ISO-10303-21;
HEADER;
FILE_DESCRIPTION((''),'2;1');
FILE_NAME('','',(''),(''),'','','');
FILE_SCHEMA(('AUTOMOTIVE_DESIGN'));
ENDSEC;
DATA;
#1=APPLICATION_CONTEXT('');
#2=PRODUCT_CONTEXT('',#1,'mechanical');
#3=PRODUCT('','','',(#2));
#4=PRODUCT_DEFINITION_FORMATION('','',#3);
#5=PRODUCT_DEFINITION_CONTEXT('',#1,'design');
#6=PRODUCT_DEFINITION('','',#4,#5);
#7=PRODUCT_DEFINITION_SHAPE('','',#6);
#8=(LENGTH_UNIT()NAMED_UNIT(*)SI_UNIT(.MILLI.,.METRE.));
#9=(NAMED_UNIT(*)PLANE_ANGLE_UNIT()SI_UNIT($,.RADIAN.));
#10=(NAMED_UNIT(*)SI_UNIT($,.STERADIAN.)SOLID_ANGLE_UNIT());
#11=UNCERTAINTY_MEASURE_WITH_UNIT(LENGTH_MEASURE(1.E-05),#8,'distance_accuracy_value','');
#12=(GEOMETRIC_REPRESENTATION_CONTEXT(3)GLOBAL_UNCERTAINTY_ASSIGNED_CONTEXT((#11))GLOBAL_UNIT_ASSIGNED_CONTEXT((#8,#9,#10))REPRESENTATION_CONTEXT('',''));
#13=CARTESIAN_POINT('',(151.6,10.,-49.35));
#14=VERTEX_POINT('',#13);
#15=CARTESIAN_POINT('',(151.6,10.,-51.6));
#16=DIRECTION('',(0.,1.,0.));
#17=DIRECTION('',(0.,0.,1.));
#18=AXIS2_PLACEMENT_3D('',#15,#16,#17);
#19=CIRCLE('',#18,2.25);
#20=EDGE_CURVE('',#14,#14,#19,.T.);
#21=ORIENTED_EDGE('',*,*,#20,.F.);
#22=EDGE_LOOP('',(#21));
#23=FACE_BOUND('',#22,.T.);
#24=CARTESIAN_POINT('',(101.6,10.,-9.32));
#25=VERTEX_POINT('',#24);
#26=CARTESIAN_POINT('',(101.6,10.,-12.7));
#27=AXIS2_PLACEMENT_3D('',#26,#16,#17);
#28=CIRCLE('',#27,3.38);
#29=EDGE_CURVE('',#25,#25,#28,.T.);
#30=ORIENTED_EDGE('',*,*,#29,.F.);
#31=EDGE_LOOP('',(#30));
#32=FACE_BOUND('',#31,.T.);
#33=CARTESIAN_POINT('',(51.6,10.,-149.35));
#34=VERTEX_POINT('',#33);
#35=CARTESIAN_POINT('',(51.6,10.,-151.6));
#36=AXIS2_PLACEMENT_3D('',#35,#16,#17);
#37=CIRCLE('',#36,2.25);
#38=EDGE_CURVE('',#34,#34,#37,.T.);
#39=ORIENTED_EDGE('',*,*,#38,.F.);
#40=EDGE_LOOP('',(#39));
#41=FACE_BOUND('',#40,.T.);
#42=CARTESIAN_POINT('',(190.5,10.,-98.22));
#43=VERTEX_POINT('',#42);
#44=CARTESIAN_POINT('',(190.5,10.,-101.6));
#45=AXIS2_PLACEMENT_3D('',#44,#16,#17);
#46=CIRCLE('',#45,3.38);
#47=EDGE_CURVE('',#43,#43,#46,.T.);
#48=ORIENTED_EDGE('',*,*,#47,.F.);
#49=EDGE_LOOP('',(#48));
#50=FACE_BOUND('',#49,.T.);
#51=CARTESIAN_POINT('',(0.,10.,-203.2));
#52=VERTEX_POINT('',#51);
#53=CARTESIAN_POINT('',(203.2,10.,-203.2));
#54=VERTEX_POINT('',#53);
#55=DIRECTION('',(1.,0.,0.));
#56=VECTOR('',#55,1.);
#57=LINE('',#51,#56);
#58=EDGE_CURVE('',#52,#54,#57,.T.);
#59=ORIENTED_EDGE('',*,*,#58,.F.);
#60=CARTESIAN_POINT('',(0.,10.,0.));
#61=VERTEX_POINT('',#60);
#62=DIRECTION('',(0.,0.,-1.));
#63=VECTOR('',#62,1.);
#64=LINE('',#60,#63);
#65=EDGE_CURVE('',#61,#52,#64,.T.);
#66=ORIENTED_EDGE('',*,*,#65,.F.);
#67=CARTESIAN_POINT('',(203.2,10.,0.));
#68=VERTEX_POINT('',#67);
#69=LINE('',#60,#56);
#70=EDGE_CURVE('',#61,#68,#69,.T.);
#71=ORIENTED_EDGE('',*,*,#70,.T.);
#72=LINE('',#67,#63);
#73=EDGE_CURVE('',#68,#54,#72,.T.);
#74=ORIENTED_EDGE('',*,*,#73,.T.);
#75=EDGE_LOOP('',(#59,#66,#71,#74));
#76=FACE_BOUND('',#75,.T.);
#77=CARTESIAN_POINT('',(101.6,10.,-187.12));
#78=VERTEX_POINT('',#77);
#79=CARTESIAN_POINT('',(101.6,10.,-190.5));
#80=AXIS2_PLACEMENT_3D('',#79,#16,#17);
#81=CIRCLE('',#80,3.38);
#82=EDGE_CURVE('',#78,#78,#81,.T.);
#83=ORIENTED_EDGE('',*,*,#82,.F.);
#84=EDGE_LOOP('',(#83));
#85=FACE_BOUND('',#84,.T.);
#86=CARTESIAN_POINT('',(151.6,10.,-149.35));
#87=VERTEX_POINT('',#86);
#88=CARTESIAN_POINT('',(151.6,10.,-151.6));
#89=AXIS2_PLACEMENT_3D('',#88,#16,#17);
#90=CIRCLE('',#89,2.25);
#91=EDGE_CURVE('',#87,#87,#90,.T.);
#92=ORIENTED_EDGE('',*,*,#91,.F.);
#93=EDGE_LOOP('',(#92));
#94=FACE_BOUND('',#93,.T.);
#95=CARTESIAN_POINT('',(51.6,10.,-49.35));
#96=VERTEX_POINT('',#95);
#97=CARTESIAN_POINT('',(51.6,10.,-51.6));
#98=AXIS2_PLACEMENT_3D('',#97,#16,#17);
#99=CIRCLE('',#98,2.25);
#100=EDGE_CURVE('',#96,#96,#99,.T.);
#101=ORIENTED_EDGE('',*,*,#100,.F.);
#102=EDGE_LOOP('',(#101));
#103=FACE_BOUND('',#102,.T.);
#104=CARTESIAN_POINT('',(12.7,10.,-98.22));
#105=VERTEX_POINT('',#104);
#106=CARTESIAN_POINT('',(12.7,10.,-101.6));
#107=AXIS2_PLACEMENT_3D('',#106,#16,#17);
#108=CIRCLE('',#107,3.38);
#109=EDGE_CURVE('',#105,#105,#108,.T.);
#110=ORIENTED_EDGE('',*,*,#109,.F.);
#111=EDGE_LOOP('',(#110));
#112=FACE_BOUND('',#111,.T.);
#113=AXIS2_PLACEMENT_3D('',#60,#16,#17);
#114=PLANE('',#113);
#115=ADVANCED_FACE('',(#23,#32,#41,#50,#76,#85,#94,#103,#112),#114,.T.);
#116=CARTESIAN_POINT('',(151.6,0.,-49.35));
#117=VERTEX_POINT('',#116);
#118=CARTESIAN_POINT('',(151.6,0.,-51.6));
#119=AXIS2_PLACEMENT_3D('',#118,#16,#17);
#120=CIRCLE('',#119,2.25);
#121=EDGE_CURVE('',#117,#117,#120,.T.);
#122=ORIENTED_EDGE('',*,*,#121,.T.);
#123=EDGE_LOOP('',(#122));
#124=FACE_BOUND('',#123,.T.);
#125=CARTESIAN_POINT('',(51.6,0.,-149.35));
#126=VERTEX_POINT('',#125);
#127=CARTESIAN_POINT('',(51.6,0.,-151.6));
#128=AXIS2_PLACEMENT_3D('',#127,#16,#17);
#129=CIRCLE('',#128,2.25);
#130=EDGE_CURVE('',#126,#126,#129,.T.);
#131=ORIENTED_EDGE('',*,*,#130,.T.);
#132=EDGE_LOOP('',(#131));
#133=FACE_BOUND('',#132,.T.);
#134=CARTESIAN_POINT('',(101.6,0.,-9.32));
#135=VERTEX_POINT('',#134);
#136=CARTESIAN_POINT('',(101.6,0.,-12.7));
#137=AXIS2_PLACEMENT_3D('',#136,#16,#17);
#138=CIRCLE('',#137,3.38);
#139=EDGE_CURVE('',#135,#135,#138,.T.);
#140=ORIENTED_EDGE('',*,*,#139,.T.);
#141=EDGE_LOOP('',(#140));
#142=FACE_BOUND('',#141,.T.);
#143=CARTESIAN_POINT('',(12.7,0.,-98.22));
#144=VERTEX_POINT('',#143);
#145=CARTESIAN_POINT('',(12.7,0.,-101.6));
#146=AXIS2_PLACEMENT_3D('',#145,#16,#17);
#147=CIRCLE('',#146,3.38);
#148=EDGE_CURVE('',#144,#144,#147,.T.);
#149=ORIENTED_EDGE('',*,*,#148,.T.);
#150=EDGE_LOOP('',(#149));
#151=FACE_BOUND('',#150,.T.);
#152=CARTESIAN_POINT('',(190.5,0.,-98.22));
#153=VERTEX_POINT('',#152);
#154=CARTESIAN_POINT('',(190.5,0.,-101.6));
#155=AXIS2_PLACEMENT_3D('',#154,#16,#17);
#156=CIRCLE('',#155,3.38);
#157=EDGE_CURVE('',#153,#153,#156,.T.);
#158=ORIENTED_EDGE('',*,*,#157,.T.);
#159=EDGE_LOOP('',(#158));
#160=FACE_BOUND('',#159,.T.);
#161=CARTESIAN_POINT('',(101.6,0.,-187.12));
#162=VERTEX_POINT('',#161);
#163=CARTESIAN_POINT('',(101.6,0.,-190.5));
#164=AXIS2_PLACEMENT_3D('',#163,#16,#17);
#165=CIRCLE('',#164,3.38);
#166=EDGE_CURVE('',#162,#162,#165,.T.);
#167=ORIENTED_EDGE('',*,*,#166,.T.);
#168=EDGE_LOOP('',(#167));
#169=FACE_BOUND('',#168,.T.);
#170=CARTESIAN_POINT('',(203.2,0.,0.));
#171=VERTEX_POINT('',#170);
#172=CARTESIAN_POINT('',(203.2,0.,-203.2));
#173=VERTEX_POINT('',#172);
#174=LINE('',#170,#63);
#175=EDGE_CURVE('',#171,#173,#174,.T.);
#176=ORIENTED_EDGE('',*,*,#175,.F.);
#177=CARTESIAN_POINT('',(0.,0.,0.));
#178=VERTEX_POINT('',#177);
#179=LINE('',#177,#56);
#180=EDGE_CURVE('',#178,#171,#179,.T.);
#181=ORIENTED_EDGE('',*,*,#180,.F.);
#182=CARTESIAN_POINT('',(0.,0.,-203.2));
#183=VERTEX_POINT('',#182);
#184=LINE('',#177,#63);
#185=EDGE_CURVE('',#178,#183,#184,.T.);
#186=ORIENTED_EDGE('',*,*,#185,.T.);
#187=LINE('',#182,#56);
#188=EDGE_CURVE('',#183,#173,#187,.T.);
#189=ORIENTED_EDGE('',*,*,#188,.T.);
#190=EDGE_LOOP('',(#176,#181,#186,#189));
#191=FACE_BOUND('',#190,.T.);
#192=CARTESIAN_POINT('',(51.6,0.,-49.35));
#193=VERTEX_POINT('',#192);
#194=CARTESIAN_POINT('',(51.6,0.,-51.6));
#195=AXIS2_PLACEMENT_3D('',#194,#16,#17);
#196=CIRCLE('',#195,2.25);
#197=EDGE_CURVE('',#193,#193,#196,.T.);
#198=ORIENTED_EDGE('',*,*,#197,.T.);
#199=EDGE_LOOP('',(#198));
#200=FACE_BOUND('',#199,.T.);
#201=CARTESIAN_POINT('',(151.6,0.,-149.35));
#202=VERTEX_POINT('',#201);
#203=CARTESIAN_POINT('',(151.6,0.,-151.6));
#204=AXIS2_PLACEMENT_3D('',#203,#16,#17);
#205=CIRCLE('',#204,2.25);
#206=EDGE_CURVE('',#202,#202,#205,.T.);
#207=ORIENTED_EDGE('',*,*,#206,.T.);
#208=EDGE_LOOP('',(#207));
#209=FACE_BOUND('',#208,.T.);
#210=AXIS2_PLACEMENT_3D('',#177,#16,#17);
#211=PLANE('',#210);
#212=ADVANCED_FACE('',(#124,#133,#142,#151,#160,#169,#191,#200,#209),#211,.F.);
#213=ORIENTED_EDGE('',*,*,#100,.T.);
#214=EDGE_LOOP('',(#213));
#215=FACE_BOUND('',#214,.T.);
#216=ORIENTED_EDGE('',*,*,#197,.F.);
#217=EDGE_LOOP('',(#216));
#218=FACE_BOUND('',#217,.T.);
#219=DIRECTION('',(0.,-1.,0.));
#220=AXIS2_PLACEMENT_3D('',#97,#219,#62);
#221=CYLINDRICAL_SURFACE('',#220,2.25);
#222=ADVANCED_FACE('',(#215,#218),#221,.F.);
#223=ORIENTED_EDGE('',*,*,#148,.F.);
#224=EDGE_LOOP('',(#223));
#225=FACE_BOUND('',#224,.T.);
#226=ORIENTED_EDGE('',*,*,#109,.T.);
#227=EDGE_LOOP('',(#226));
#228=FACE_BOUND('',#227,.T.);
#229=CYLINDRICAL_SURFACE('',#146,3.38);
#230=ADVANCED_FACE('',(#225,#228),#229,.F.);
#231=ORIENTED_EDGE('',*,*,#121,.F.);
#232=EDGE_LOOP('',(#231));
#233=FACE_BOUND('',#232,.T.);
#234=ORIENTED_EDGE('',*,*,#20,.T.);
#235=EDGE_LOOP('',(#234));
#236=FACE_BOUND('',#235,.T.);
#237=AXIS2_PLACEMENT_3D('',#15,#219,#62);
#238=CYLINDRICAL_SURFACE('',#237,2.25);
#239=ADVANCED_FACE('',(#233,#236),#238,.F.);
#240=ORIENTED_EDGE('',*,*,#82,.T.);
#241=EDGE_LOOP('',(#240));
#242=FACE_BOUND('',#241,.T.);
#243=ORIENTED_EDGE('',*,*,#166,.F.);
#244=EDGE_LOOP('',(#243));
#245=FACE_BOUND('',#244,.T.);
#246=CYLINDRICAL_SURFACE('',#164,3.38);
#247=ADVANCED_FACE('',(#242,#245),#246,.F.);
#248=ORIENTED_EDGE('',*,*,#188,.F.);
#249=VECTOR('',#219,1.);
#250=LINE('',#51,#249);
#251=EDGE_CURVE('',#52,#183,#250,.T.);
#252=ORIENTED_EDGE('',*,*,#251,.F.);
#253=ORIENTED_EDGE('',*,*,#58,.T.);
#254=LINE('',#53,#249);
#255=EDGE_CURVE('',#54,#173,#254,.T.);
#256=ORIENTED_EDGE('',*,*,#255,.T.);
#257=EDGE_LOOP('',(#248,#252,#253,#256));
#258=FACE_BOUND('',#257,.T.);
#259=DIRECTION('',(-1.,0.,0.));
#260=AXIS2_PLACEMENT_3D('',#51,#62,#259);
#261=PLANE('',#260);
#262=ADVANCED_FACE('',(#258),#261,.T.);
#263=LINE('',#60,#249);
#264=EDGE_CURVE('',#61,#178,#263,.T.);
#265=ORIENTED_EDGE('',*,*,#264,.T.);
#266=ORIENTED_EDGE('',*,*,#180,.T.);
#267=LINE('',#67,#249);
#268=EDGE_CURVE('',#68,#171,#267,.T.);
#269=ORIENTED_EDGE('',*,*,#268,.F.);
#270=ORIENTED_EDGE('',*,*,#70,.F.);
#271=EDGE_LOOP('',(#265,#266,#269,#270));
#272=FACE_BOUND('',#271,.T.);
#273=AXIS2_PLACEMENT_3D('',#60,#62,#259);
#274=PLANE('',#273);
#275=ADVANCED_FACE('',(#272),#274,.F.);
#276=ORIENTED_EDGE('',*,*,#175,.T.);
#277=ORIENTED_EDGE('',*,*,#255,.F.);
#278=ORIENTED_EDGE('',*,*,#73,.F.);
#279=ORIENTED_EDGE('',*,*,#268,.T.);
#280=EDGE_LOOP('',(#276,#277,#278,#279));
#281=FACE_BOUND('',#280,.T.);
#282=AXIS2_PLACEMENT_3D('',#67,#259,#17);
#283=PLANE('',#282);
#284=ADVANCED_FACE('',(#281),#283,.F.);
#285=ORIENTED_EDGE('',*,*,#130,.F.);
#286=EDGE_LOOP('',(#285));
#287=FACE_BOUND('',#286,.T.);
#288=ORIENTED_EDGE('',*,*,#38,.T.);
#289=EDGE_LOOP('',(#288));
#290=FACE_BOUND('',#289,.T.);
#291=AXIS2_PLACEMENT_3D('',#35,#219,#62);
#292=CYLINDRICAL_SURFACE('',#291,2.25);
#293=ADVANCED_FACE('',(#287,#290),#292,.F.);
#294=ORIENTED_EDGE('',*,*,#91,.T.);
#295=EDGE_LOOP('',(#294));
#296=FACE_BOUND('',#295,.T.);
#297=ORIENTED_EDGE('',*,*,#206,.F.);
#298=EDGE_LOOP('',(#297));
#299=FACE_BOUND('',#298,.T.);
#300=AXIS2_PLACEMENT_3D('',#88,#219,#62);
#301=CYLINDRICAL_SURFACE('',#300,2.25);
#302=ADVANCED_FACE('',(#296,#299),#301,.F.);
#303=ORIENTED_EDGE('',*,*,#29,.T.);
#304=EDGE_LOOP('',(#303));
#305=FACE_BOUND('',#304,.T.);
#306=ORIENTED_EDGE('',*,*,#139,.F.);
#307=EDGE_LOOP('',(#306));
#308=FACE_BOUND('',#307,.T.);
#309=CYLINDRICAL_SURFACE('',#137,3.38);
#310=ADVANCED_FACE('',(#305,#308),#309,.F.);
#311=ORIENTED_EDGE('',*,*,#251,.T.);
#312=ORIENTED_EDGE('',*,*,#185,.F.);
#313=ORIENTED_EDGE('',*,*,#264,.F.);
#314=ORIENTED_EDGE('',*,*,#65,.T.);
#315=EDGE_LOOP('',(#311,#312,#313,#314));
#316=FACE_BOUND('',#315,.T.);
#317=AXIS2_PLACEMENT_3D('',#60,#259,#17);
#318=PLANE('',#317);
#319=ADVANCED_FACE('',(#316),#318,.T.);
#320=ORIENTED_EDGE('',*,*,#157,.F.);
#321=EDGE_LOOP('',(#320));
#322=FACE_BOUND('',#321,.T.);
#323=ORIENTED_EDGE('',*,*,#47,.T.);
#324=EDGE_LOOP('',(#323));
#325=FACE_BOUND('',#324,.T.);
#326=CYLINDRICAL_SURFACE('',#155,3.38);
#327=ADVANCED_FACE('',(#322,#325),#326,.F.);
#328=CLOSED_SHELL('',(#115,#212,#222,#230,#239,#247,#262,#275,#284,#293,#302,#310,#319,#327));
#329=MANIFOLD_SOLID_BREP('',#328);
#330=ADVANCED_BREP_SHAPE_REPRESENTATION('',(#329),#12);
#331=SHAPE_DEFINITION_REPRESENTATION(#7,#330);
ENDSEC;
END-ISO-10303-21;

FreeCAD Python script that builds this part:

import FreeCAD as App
import Part
import Sketcher
Q = App.Units.Quantity

doc = App.newDocument("Part")
body = doc.addObject("PartDesign::Body", "Body")

sketch1 = body.newObject("Sketcher::SketchObject", "Sketch")
sketch1.AttachmentSupport = (doc.getObject("XZ_Plane"), [""])
sketch1.MapMode = "FlatFace"
sketch1.addGeometry(Part.LineSegment(App.Vector(0, -203.2, 0), App.Vector(0, 0, 0)), False)
sketch1.addGeometry(Part.LineSegment(App.Vector(0, 0, 0), App.Vector(203.2, 0, 0)), False)
sketch1.addGeometry(Part.LineSegment(App.Vector(203.2, 0, 0), App.Vector(203.2, -203.2, 0)), False)
sketch1.addGeometry(Part.LineSegment(App.Vector(203.2, -203.2, 0), App.Vector(0, -203.2, 0)), False)
sketch1.addGeometry(Part.Circle(App.Vector(51.6, -51.6, 0), App.Vector(0, 0, 1), 2.25), False)
sketch1.addGeometry(Part.Circle(App.Vector(151.6, -51.6, 0), App.Vector(0, 0, 1), 2.25), False)
sketch1.addGeometry(Part.Circle(App.Vector(51.6, -151.6, 0), App.Vector(0, 0, 1), 2.25), False)
sketch1.addGeometry(Part.Circle(App.Vector(151.6, -151.6, 0), App.Vector(0, 0, 1), 2.25), False)
sketch1.addConstraint(Sketcher.Constraint("Coincident", 0, 2, 1, 1))
sketch1.addConstraint(Sketcher.Constraint("Coincident", 1, 2, 2, 1))
sketch1.addConstraint(Sketcher.Constraint("Coincident", 2, 2, 3, 1))
sketch1.addConstraint(Sketcher.Constraint("Coincident", 3, 2, 0, 1))
sketch1.addConstraint(Sketcher.Constraint("Vertical", 0))
sketch1.addConstraint(Sketcher.Constraint("Horizontal", 1))
sketch1.addConstraint(Sketcher.Constraint("Vertical", 2))
sketch1.addConstraint(Sketcher.Constraint("Horizontal", 3))
sketch1.addConstraint(Sketcher.Constraint("Coincident", 0, 2, -1, 1))
sketch1.addConstraint(Sketcher.Constraint("Equal", 4, 5))
sketch1.addConstraint(Sketcher.Constraint("Equal", 5, 6))
sketch1.addConstraint(Sketcher.Constraint("Equal", 6, 7))
sketch1.addConstraint(Sketcher.Constraint("Horizontal", 4, 3, 5, 3))
sketch1.addConstraint(Sketcher.Constraint("Horizontal", 6, 3, 7, 3))
sketch1.addConstraint(Sketcher.Constraint("Vertical", 4, 3, 6, 3))
sketch1.addConstraint(Sketcher.Constraint("Vertical", 5, 3, 7, 3))
sketch1.addConstraint(Sketcher.Constraint("Equal", 3, 0))
sketch1.addConstraint(Sketcher.Constraint("Diameter", 4, Q("4.5 mm")))
sketch1.addConstraint(Sketcher.Constraint("DistanceX", 1, 1, 1, 2, Q("203.2 mm")))
sketch1.addConstraint(Sketcher.Constraint("DistanceX", 4, 3, 5, 3, Q("100 mm")))
sketch1.addConstraint(Sketcher.Constraint("DistanceY", 6, 3, 4, 3, Q("100 mm")))
sketch1.addConstraint(Sketcher.Constraint("DistanceX", -1, 1, 4, 3, Q("51.6 mm")))
sketch1.addConstraint(Sketcher.Constraint("DistanceY", 4, 3, -1, 1, Q("51.6 mm")))
pad1 = body.newObject("PartDesign::Pad", "Pad")
pad1.Profile = sketch1
pad1.Length = 10
pad1.Reversed = True

sketch2 = body.newObject("Sketcher::SketchObject", "Sketch001")
sketch2.AttachmentSupport = (doc.getObject("XZ_Plane"), [""])
sketch2.MapMode = "FlatFace"
sketch2.AttachmentOffset = App.Placement(App.Vector(0, 0, -10), App.Rotation())
sketch2.addGeometry(Part.Circle(App.Vector(12.7, -101.6, 0), App.Vector(0, 0, 1), 3.38), False)
sketch2.addGeometry(Part.Circle(App.Vector(190.5, -101.6, 0), App.Vector(0, 0, 1), 3.38), False)
sketch2.addGeometry(Part.Circle(App.Vector(101.6, -190.5, 0), App.Vector(0, 0, 1), 3.38), False)
sketch2.addGeometry(Part.Circle(App.Vector(101.6, -12.7, 0), App.Vector(0, 0, 1), 3.38), False)
sketch2.addConstraint(Sketcher.Constraint("Equal", 0, 1))
sketch2.addConstraint(Sketcher.Constraint("Equal", 1, 2))
sketch2.addConstraint(Sketcher.Constraint("Equal", 2, 3))
sketch2.addConstraint(Sketcher.Constraint("Horizontal", 0, 3, 1, 3))
sketch2.addConstraint(Sketcher.Constraint("Vertical", 2, 3, 3, 3))
sketch2.addConstraint(Sketcher.Constraint("Diameter", 0, Q("6.76 mm")))
sketch2.addConstraint(Sketcher.Constraint("DistanceX", -1, 1, 0, 3, Q("12.7 mm")))
sketch2.addConstraint(Sketcher.Constraint("DistanceY", 0, 3, -1, 1, Q("101.6 mm")))
sketch2.addConstraint(Sketcher.Constraint("DistanceX", -1, 1, 1, 3, Q("190.5 mm")))
sketch2.addConstraint(Sketcher.Constraint("DistanceX", -1, 1, 2, 3, Q("101.6 mm")))
sketch2.addConstraint(Sketcher.Constraint("DistanceY", 2, 3, -1, 1, Q("190.5 mm")))
sketch2.addConstraint(Sketcher.Constraint("DistanceY", 3, 3, -1, 1, Q("12.7 mm")))
pocket1 = body.newObject("PartDesign::Pocket", "Pocket")
pocket1.Profile = sketch2
pocket1.Type = "ThroughAll"
pocket1.Reversed = True

doc.recompute()
